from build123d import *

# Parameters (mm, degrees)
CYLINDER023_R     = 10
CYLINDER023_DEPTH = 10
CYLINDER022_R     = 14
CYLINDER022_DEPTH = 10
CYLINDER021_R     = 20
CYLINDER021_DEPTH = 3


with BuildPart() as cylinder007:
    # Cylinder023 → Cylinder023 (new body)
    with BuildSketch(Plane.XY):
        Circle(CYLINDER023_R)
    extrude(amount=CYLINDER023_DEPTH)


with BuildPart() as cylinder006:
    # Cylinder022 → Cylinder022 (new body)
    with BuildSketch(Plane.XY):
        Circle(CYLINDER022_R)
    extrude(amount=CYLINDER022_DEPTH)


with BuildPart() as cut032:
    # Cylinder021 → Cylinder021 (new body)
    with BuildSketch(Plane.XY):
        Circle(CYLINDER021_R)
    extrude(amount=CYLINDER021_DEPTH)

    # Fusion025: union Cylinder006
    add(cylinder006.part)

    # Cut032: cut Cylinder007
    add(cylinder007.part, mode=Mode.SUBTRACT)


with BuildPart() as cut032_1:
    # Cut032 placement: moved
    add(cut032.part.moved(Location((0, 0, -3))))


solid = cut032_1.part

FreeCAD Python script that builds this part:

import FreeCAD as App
import Part
import Sketcher

V = App.Vector

doc = App.newDocument("Part")
body = doc.addObject("PartDesign::Body", "Body")

# Sketch on XY plane
sketch1 = body.newObject("Sketcher::SketchObject", "Sketch")
sketch1.AttachmentSupport = (doc.getObject("XY_Plane"), [""])
sketch1.MapMode = "FlatFace"
sketch1.addGeometry(Part.Circle(V(0, 0, 0), V(0, 0, 1), 10), False)
sketch1.addConstraint([
    Sketcher.Constraint("Coincident", 0, 3, -1, 1),
    Sketcher.Constraint("Diameter", 0, 20.0),
])
pad1 = body.newObject("PartDesign::Pad", "Pad")
pad1.Profile = sketch1
pad1.Length = 10
body2 = doc.addObject("PartDesign::Body", "Body001")

# Sketch on XY plane
sketch2 = body2.newObject("Sketcher::SketchObject", "Sketch001")
sketch2.AttachmentSupport = (doc.getObject("XY_Plane001"), [""])
sketch2.MapMode = "FlatFace"
sketch2.addGeometry(Part.Circle(V(0, 0, 0), V(0, 0, 1), 14), False)
sketch2.addConstraint([
    Sketcher.Constraint("Coincident", 0, 3, -1, 1),
    Sketcher.Constraint("Diameter", 0, 28.0),
])
pad2 = body2.newObject("PartDesign::Pad", "Pad001")
pad2.Profile = sketch2
pad2.Length = 10
body3 = doc.addObject("PartDesign::Body", "Body002")

# Sketch on XY plane
sketch3 = body3.newObject("Sketcher::SketchObject", "Sketch002")
sketch3.AttachmentSupport = (doc.getObject("XY_Plane002"), [""])
sketch3.MapMode = "FlatFace"
sketch3.addGeometry(Part.Circle(V(0, 0, 0), V(0, 0, 1), 20), False)
sketch3.addConstraint([
    Sketcher.Constraint("Coincident", 0, 3, -1, 1),
    Sketcher.Constraint("Diameter", 0, 40.0),
])
pad3 = body3.newObject("PartDesign::Pad", "Pad002")
pad3.Profile = sketch3
pad3.Length = 3
doc.recompute()

boolean = body3.newObject("PartDesign::Boolean", "Boolean")
boolean.Type = "Fuse"
boolean.addObjects([body2])
doc.recompute()

boolean2 = body3.newObject("PartDesign::Boolean", "Boolean001")
boolean2.Type = "Cut"
boolean2.addObjects([body])
body4 = doc.addObject("PartDesign::Body", "Body003")
doc.recompute()

body3.Placement = App.Placement(V(0, 0, -3), App.Rotation(V(0, 0, 1), 0))
boolean3 = body4.newObject("PartDesign::Boolean", "Boolean002")
boolean3.Type = "Fuse"
boolean3.addObjects([body3])

doc.recompute()
